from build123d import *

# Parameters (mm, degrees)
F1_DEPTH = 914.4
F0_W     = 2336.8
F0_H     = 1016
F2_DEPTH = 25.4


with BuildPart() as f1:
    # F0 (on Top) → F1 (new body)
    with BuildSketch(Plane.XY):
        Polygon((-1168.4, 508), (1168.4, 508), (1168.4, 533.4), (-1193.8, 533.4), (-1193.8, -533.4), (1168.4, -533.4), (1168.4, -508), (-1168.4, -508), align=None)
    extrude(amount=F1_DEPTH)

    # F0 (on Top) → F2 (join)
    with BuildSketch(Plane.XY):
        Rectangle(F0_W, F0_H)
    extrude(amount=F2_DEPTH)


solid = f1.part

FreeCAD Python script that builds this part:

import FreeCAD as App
import Part
import Sketcher
from FreeCAD import Vector
Q = App.Units.Quantity

doc = App.newDocument("Part")
body = doc.addObject("PartDesign::Body", "Body")

# Sketch on XY plane
sketch1 = body.newObject("Sketcher::SketchObject", "Sketch")
sketch1.AttachmentSupport = (doc.getObject("XY_Plane"), [""])
sketch1.MapMode = "FlatFace"
sketch1.addGeometry([
    Part.LineSegment(Vector(-1168.4, 508, 0), Vector(1168.4, 508, 0)),  # 0
    Part.LineSegment(Vector(1168.4, 508, 0), Vector(1168.4, 533.4, 0)),  # 1
    Part.LineSegment(Vector(1168.4, 533.4, 0), Vector(-1193.8, 533.4, 0)),  # 2
    Part.LineSegment(Vector(-1193.8, 533.4, 0), Vector(-1193.8, -533.4, 0)),  # 3
    Part.LineSegment(Vector(-1193.8, -533.4, 0), Vector(1168.4, -533.4, 0)),  # 4
    Part.LineSegment(Vector(1168.4, -533.4, 0), Vector(1168.4, -508, 0)),  # 5
    Part.LineSegment(Vector(1168.4, -508, 0), Vector(-1168.4, -508, 0)),  # 6
    Part.LineSegment(Vector(-1168.4, -508, 0), Vector(-1168.4, 508, 0)),  # 7
], False)
sketch1.addConstraint([
    Sketcher.Constraint("Coincident", 0, 2, 1, 1),
    Sketcher.Constraint("Coincident", 1, 2, 2, 1),
    Sketcher.Constraint("Coincident", 2, 2, 3, 1),
    Sketcher.Constraint("Coincident", 3, 2, 4, 1),
    Sketcher.Constraint("Coincident", 4, 2, 5, 1),
    Sketcher.Constraint("Coincident", 5, 2, 6, 1),
    Sketcher.Constraint("Coincident", 6, 2, 7, 1),
    Sketcher.Constraint("Coincident", 7, 2, 0, 1),
    Sketcher.Constraint("Horizontal", 0),
    Sketcher.Constraint("Vertical", 1),
    Sketcher.Constraint("Horizontal", 2),
    Sketcher.Constraint("Vertical", 3),
    Sketcher.Constraint("Horizontal", 4),
    Sketcher.Constraint("Vertical", 5),
    Sketcher.Constraint("Horizontal", 6),
    Sketcher.Constraint("Vertical", 7),
    Sketcher.Constraint("Symmetric", 0, 2, 6, 2, -1, 1),
    Sketcher.Constraint("Symmetric", 1, 2, 4, 2, -1),
    Sketcher.Constraint("DistanceX", 0, 1, 0, 2, Q("92 in")),
    Sketcher.Constraint("DistanceX", 2, 2, 2, 1, Q("93 in")),
    Sketcher.Constraint("DistanceY", 1, 1, 1, 2, Q("1 in")),
    Sketcher.Constraint("DistanceY", 3, 2, 3, 1, Q("42 in")),
])
pad1 = body.newObject("PartDesign::Pad", "Pad")
pad1.Profile = sketch1
pad1.Length = Q("36 in")

# Sketch on XY plane
sketch2 = body.newObject("Sketcher::SketchObject", "Sketch001")
sketch2.AttachmentSupport = (doc.getObject("XY_Plane"), [""])
sketch2.MapMode = "FlatFace"
sketch2.addGeometry([
    Part.LineSegment(Vector(-1168.4, 508, 0), Vector(-1168.4, -508, 0)),
    Part.LineSegment(Vector(-1168.4, -508, 0), Vector(1168.4, -508, 0)),
    Part.LineSegment(Vector(1168.4, -508, 0), Vector(1168.4, 508, 0)),
    Part.LineSegment(Vector(1168.4, 508, 0), Vector(-1168.4, 508, 0)),
], False)
sketch2.addConstraint([
    Sketcher.Constraint("Coincident", 0, 2, 1, 1),
    Sketcher.Constraint("Coincident", 1, 2, 2, 1),
    Sketcher.Constraint("Coincident", 2, 2, 3, 1),
    Sketcher.Constraint("Coincident", 3, 2, 0, 1),
    Sketcher.Constraint("Vertical", 0),
    Sketcher.Constraint("Horizontal", 1),
    Sketcher.Constraint("Vertical", 2),
    Sketcher.Constraint("Horizontal", 3),
    Sketcher.Constraint("Symmetric", 0, 2, 2, 2, -1, 1),
    Sketcher.Constraint("DistanceX", 1, 1, 1, 2, Q("92 in")),
    Sketcher.Constraint("DistanceY", 0, 2, 0, 1, Q("40 in")),
])
pad2 = body.newObject("PartDesign::Pad", "Pad001")
pad2.Profile = sketch2
pad2.Length = Q("1 in")

doc.recompute()
